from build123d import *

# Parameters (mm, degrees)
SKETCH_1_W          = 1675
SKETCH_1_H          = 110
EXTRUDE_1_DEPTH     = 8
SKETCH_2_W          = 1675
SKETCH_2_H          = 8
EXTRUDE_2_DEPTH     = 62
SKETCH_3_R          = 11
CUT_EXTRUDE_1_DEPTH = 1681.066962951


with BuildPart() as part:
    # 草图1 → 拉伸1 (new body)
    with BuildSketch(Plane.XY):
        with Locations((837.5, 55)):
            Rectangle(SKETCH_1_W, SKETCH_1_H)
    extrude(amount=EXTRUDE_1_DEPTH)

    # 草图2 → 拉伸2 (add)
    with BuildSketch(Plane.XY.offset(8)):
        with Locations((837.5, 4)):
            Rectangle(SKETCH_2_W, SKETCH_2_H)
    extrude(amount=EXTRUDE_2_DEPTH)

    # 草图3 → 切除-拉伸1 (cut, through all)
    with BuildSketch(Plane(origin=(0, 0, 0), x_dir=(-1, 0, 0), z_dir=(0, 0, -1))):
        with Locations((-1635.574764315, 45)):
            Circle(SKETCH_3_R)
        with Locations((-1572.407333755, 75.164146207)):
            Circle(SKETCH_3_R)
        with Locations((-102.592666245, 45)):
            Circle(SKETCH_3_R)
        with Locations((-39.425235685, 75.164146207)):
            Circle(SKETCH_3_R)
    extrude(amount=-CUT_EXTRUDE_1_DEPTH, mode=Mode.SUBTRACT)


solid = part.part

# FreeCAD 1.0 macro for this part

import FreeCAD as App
import Part
import Sketcher
Q = App.Units.Quantity

doc = App.newDocument("Part")
body = doc.addObject("PartDesign::Body", "Body")

# Sketch on XY plane
sketch1 = body.newObject("Sketcher::SketchObject", "Sketch")
sketch1.AttachmentSupport = (doc.getObject("XY_Plane"), [""])
sketch1.MapMode = "FlatFace"
sketch1.addGeometry([
    Part.LineSegment(App.Vector(0, 110, 0), App.Vector(0, 0, 0)),
    Part.LineSegment(App.Vector(0, 0, 0), App.Vector(1675, 0, 0)),
    Part.LineSegment(App.Vector(1675, 0, 0), App.Vector(1675, 110, 0)),
    Part.LineSegment(App.Vector(1675, 110, 0), App.Vector(0, 110, 0)),
], False)
sketch1.addConstraint([
    Sketcher.Constraint("Coincident", 0, 2, 1, 1),
    Sketcher.Constraint("Coincident", 1, 2, 2, 1),
    Sketcher.Constraint("Coincident", 2, 2, 3, 1),
    Sketcher.Constraint("Coincident", 3, 2, 0, 1),
    Sketcher.Constraint("Vertical", 0),
    Sketcher.Constraint("Horizontal", 1),
    Sketcher.Constraint("Vertical", 2),
    Sketcher.Constraint("Horizontal", 3),
    Sketcher.Constraint("Coincident", 0, 2, -1, 1),
    Sketcher.Constraint("DistanceX", 1, 1, 1, 2, Q("1675 mm")),
    Sketcher.Constraint("DistanceY", 0, 2, 0, 1, Q("110 mm")),
])
pad1 = body.newObject("PartDesign::Pad", "Pad")
pad1.Profile = sketch1
pad1.Length = 8

# Sketch on XY plane
sketch2 = body.newObject("Sketcher::SketchObject", "Sketch001")
sketch2.AttachmentSupport = (doc.getObject("XY_Plane"), [""])
sketch2.MapMode = "FlatFace"
sketch2.AttachmentOffset = App.Placement(App.Vector(0, 0, 8), App.Rotation())
sketch2.addGeometry([
    Part.LineSegment(App.Vector(0, 8, 0), App.Vector(0, 0, 0)),
    Part.LineSegment(App.Vector(0, 0, 0), App.Vector(1675, 0, 0)),
    Part.LineSegment(App.Vector(1675, 0, 0), App.Vector(1675, 8, 0)),
    Part.LineSegment(App.Vector(1675, 8, 0), App.Vector(0, 8, 0)),
], False)
sketch2.addConstraint([
    Sketcher.Constraint("Coincident", 0, 2, 1, 1),
    Sketcher.Constraint("Coincident", 1, 2, 2, 1),
    Sketcher.Constraint("Coincident", 2, 2, 3, 1),
    Sketcher.Constraint("Coincident", 3, 2, 0, 1),
    Sketcher.Constraint("Vertical", 0),
    Sketcher.Constraint("Horizontal", 1),
    Sketcher.Constraint("Vertical", 2),
    Sketcher.Constraint("Horizontal", 3),
    Sketcher.Constraint("Coincident", 0, 2, -1, 1),
    Sketcher.Constraint("DistanceX", 1, 1, 1, 2, Q("1675 mm")),
    Sketcher.Constraint("DistanceY", 0, 2, 0, 1, Q("8 mm")),
])
pad2 = body.newObject("PartDesign::Pad", "Pad001")
pad2.Profile = sketch2
pad2.Length = 62

# Sketch on XY plane
sketch3 = body.newObject("Sketcher::SketchObject", "Sketch002")
sketch3.AttachmentSupport = (doc.getObject("XY_Plane"), [""])
sketch3.MapMode = "FlatFace"
sketch3.addGeometry([
    Part.Circle(App.Vector(1636, 45, 0), App.Vector(0, 0, 1), 11),
    Part.Circle(App.Vector(1572, 75, 0), App.Vector(0, 0, 1), 11),
    Part.Circle(App.Vector(103, 45, 0), App.Vector(0, 0, 1), 11),
    Part.Circle(App.Vector(39, 75, 0), App.Vector(0, 0, 1), 11),
], False)
sketch3.addConstraint([
    Sketcher.Constraint("Equal", 0, 1),
    Sketcher.Constraint("Equal", 1, 2),
    Sketcher.Constraint("Equal", 2, 3),
    Sketcher.Constraint("Horizontal", 0, 3, 2, 3),
    Sketcher.Constraint("Horizontal", 1, 3, 3, 3),
    Sketcher.Constraint("Diameter", 0, Q("22 mm")),
    Sketcher.Constraint("DistanceY", -1, 1, 0, 3, Q("45 mm")),
    Sketcher.Constraint("DistanceX", 2, 3, 0, 3, Q("1532.982098 mm")),
    Sketcher.Constraint("DistanceX", 3, 3, 1, 3, Q("1532.982098 mm")),
    Sketcher.Constraint("DistanceX", 1, 3, 0, 3, Q("63.167431 mm")),
    Sketcher.Constraint("DistanceX", -1, 1, 0, 3, Q("1635.574764 mm")),
    Sketcher.Constraint("DistanceY", -1, 1, 1, 3, Q("75.164146 mm")),
])
pocket1 = body.newObject("PartDesign::Pocket", "Pocket")
pocket1.Profile = sketch3
pocket1.Type = "ThroughAll"
pocket1.Reversed = True

doc.recompute()
